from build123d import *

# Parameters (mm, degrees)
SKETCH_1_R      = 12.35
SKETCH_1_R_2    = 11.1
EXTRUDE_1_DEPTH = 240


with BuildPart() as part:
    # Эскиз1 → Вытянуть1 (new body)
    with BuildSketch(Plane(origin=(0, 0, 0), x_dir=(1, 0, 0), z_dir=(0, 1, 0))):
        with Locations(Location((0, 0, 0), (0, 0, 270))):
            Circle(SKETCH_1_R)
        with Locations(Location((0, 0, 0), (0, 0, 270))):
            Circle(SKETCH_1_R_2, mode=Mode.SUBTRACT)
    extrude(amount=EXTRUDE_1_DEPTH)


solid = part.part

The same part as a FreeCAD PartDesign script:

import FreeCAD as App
import Part
import Sketcher
Q = App.Units.Quantity

doc = App.newDocument("Part")
body = doc.addObject("PartDesign::Body", "Body")

# Sketch on XZ plane
sketch1 = doc.addObject("Sketcher::SketchObject", "Sketch")
body.addObject(sketch1)
sketch1.AttachmentSupport = (doc.XZ_Plane, [""])
sketch1.MapMode = "FlatFace"
sketch1.addGeometry([
    Part.Circle(App.Vector(0, 0, 0), App.Vector(0, 0, 1), 12),
    Part.Circle(App.Vector(0, 0, 0), App.Vector(0, 0, 1), 11),
], False)
sketch1.addConstraint([
    Sketcher.Constraint("Coincident", 0, 3, -1, 1),
    Sketcher.Constraint("Coincident", 1, 3, -1, 1),
    Sketcher.Constraint("Diameter", 0, Q("24.7 mm")),
    Sketcher.Constraint("Diameter", 1, Q("22.2 mm")),
])
pad1 = doc.addObject("PartDesign::Pad", "Pad")
body.addObject(pad1)
pad1.Profile = sketch1
pad1.Length = 240
pad1.Reversed = True

doc.recompute()
